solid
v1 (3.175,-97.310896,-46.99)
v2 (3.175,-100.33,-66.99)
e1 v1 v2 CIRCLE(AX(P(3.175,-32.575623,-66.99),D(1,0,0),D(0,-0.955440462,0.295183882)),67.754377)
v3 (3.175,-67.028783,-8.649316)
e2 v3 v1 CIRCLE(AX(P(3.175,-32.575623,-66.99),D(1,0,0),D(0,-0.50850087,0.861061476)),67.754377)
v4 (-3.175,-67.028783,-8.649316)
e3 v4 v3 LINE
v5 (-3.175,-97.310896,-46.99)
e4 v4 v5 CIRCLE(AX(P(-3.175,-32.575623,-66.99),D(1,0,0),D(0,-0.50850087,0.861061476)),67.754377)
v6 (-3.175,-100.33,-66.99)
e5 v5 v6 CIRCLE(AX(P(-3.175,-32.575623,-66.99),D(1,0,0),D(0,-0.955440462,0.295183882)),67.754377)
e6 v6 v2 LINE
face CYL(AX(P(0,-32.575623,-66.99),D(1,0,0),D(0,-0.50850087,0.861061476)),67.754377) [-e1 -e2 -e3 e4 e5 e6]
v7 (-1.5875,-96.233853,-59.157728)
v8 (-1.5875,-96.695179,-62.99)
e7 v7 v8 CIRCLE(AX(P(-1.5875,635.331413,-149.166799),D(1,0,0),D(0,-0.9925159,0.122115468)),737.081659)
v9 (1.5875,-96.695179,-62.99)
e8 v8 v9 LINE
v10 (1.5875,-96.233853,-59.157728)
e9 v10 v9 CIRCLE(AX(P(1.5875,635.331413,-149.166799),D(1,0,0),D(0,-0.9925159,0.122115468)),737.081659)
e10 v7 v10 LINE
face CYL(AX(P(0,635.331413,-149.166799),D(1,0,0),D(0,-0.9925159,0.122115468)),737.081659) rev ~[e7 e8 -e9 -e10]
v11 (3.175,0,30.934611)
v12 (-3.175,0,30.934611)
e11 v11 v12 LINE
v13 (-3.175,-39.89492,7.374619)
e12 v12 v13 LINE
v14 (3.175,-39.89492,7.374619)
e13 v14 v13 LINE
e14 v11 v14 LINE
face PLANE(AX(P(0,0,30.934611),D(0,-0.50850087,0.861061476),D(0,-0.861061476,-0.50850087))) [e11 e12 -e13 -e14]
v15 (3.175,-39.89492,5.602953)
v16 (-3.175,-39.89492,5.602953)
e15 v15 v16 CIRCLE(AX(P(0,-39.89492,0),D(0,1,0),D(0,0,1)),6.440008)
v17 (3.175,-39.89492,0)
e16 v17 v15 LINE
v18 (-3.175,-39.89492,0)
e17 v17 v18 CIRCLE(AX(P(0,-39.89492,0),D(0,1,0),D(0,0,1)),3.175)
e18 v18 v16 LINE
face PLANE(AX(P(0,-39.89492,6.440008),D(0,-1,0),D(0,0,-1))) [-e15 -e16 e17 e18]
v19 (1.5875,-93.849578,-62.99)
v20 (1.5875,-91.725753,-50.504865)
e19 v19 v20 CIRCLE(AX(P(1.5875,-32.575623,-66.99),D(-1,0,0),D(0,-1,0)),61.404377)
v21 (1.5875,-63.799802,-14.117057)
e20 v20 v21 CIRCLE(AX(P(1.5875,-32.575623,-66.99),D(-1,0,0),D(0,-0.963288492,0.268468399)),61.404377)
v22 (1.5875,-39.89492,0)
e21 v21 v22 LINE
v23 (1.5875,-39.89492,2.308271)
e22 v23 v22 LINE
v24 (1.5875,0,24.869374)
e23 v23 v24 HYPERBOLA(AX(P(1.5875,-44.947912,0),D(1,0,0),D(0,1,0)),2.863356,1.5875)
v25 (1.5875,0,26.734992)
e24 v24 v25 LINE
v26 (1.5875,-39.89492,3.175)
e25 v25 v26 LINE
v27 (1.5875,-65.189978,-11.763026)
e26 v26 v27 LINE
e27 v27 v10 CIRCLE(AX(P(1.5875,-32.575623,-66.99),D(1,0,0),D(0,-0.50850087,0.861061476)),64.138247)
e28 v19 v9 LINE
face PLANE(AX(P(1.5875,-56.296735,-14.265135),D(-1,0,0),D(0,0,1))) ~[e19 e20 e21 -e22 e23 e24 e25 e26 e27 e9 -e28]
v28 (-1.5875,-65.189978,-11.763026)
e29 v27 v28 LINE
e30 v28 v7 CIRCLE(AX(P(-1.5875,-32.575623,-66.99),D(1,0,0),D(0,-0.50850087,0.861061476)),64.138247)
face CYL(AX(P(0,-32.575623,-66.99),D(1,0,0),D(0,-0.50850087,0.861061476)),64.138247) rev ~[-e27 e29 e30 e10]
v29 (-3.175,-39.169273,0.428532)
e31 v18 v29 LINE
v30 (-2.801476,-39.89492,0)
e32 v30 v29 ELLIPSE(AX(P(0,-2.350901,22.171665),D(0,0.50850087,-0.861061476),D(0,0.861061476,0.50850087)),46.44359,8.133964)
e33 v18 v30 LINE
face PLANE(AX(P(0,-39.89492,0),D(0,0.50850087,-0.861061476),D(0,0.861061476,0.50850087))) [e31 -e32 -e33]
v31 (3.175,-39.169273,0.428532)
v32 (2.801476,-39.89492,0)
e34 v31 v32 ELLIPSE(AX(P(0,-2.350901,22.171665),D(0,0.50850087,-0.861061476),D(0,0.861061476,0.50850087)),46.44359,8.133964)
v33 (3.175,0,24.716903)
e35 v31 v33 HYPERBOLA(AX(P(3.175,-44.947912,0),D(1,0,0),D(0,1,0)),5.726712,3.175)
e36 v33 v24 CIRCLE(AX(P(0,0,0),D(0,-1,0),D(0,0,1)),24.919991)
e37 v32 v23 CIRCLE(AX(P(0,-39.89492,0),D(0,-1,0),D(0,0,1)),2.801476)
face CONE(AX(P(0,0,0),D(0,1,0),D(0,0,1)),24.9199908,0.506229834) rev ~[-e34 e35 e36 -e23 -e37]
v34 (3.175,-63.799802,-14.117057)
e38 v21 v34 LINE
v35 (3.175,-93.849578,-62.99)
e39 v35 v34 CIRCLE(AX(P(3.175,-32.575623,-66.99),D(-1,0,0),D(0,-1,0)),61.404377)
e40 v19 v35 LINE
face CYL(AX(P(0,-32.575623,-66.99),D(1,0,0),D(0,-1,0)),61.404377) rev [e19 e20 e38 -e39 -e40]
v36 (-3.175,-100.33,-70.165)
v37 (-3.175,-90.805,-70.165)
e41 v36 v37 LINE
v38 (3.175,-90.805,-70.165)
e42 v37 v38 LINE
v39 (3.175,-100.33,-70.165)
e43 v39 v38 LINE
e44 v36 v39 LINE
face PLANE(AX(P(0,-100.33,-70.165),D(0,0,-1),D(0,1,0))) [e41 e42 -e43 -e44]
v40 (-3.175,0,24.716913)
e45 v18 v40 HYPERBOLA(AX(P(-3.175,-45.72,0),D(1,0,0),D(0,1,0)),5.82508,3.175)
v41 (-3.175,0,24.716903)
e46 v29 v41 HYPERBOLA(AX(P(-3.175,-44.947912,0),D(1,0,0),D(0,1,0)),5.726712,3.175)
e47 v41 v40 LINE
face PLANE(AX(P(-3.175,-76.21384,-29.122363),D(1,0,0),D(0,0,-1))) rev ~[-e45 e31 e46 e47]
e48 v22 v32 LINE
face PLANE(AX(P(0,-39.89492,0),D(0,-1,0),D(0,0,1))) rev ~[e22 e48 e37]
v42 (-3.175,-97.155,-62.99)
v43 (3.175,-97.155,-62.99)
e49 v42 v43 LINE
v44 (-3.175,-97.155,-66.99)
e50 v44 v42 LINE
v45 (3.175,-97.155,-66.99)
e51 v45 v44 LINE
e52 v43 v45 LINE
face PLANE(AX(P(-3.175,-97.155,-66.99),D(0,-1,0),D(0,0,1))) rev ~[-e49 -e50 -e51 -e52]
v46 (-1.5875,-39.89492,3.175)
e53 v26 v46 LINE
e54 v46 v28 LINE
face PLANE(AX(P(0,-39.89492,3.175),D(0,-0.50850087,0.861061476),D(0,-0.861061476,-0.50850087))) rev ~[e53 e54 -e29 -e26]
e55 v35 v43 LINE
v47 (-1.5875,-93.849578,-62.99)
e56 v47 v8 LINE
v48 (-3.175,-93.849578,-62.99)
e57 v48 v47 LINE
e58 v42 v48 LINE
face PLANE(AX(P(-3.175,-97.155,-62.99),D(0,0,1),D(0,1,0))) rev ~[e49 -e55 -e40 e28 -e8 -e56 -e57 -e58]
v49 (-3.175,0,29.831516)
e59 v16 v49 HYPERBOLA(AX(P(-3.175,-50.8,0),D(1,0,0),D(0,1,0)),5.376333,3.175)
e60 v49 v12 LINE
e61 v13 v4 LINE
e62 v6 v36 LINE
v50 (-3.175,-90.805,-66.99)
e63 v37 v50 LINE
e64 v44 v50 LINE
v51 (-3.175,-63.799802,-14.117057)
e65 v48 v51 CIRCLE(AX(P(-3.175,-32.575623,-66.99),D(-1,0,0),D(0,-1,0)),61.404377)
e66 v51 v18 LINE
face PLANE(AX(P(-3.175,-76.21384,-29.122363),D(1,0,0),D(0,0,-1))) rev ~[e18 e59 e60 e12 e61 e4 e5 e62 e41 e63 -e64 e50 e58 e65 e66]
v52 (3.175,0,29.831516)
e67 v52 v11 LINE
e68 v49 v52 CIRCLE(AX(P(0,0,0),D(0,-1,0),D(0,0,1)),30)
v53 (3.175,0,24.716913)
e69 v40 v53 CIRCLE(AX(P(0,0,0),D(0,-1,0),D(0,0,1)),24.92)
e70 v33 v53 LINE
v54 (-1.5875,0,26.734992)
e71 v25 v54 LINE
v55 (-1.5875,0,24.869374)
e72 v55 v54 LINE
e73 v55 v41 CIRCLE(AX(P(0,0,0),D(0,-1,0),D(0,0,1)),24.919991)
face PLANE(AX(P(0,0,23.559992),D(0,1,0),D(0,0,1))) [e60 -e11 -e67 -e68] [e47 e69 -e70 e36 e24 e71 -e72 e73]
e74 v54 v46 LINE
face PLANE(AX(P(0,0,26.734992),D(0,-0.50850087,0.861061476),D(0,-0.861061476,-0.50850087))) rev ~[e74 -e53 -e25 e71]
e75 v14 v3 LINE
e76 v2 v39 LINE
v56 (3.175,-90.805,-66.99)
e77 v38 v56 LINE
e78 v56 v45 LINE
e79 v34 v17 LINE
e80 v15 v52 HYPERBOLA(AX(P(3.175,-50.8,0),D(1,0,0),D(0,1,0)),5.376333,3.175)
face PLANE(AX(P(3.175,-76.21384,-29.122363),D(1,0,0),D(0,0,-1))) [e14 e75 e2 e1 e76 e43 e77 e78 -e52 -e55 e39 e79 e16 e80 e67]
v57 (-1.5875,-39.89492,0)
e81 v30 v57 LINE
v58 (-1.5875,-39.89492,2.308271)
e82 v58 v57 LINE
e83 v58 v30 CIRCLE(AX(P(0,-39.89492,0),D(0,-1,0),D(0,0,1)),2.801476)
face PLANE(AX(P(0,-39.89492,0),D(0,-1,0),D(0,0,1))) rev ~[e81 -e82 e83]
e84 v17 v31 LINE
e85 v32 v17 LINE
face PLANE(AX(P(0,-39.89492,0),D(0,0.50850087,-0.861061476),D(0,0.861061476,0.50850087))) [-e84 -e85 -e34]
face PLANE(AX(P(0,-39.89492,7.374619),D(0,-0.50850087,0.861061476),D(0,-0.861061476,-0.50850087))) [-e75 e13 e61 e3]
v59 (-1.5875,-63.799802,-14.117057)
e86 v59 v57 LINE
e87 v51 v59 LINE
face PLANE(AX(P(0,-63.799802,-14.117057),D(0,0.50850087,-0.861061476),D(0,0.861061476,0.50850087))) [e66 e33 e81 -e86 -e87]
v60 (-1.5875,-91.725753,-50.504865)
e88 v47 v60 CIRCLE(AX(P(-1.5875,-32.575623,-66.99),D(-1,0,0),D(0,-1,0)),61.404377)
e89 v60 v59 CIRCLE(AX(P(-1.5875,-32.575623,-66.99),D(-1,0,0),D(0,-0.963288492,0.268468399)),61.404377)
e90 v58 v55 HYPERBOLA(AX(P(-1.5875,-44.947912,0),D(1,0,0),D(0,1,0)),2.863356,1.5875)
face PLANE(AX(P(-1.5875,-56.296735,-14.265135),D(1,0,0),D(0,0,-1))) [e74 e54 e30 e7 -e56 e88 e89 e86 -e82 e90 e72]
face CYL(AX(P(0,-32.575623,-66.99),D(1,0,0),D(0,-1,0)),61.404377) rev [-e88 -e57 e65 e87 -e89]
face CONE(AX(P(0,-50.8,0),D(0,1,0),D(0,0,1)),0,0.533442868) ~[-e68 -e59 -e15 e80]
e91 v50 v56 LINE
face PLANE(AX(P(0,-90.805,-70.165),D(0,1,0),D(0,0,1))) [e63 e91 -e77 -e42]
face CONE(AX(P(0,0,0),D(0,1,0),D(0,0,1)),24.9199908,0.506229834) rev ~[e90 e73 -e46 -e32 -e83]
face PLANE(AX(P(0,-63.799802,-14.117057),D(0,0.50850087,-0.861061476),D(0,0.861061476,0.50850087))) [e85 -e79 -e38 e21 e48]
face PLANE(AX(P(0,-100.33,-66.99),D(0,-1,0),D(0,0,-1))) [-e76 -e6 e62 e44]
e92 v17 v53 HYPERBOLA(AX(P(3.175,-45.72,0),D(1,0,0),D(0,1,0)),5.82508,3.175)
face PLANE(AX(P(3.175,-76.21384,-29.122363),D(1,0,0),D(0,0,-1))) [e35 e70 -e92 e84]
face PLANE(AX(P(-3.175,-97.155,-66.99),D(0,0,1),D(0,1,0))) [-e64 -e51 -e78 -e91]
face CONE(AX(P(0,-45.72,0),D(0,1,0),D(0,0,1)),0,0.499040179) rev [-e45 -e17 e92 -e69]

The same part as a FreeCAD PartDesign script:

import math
import FreeCAD as App
import Part
import Sketcher

V = App.Vector
Q = App.Units.Quantity

doc = App.newDocument("Part")
body = doc.addObject("PartDesign::Body", "Body")

# Sketch on YZ plane
sketch1 = body.newObject("Sketcher::SketchObject", "Sketch")
sketch1.AttachmentSupport = (doc.getObject("YZ_Plane"), [""])
sketch1.MapMode = "FlatFace"
sketch1.addGeometry(Part.LineSegment(V(0, 30, 0), V(-51, 0, 0)), False)
sketch1.addGeometry(Part.LineSegment(V(-51, 0, 0), V(0, 0, 0)), False)
sketch1.addGeometry(Part.LineSegment(V(0, 0, 0), V(0, 30, 0)), False)
sketch1.addConstraint(Sketcher.Constraint("Coincident", 0, 2, 1, 1))
sketch1.addConstraint(Sketcher.Constraint("Coincident", 1, 2, 2, 1))
sketch1.addConstraint(Sketcher.Constraint("Coincident", 2, 2, 0, 1))
sketch1.addConstraint(Sketcher.Constraint("Horizontal", 1))
sketch1.addConstraint(Sketcher.Constraint("Vertical", 2))
sketch1.addConstraint(Sketcher.Constraint("Coincident", 1, 2, -1, 1))
sketch1.addConstraint(Sketcher.Constraint("DistanceX", 1, 1, 1, 2, Q("2 in")))
sketch1.addConstraint(Sketcher.Constraint("DistanceY", 2, 1, 2, 2, Q("30 mm")))
revolution = body.newObject("PartDesign::Revolution", "Revolution")
revolution.Profile = sketch1
revolution.ReferenceAxis = (sketch1, ["H_Axis"])
revolution.Angle = 360

# Sketch on YZ plane
sketch2 = body.newObject("Sketcher::SketchObject", "Sketch001")
sketch2.AttachmentSupport = (doc.getObject("YZ_Plane"), [""])
sketch2.MapMode = "FlatFace"
sketch2.addGeometry(Part.LineSegment(V(0, 25, 0), V(-46, 0, 0)), False)
sketch2.addGeometry(Part.LineSegment(V(-46, 0, 0), V(0, 0, 0)), False)
sketch2.addGeometry(Part.LineSegment(V(0, 0, 0), V(0, 25, 0)), False)
sketch2.addConstraint(Sketcher.Constraint("Coincident", 0, 2, 1, 1))
sketch2.addConstraint(Sketcher.Constraint("Coincident", 1, 2, 2, 1))
sketch2.addConstraint(Sketcher.Constraint("Coincident", 2, 2, 0, 1))
sketch2.addConstraint(Sketcher.Constraint("Horizontal", 1))
sketch2.addConstraint(Sketcher.Constraint("Vertical", 2))
sketch2.addConstraint(Sketcher.Constraint("Coincident", 1, 2, -1, 1))
sketch2.addConstraint(Sketcher.Constraint("DistanceX", 1, 1, 1, 2, Q("1.8 in")))
sketch2.addConstraint(Sketcher.Constraint("DistanceY", 2, 1, 2, 2, Q("24.92 mm")))
groove = body.newObject("PartDesign::Groove", "Groove")
groove.Profile = sketch2
groove.ReferenceAxis = (sketch2, ["H_Axis"])
groove.Angle = 360

# Sketch on YZ plane
sketch3 = body.newObject("Sketcher::SketchObject", "Sketch002")
sketch3.AttachmentSupport = (doc.getObject("YZ_Plane"), [""])
sketch3.MapMode = "FlatFace"
sketch3.addGeometry(Part.LineSegment(V(-40, 6, 0), V(-56, 6, 0)), False)
sketch3.addGeometry(Part.LineSegment(V(-56, 6, 0), V(-56, -6, 0)), False)
sketch3.addGeometry(Part.LineSegment(V(-56, -6, 0), V(-40, -6, 0)), False)
sketch3.addGeometry(Part.LineSegment(V(-40, -6, 0), V(-40, 6, 0)), False)
sketch3.addConstraint(Sketcher.Constraint("Coincident", 0, 2, 1, 1))
sketch3.addConstraint(Sketcher.Constraint("Coincident", 1, 2, 2, 1))
sketch3.addConstraint(Sketcher.Constraint("Coincident", 2, 2, 3, 1))
sketch3.addConstraint(Sketcher.Constraint("Coincident", 3, 2, 0, 1))
sketch3.addConstraint(Sketcher.Constraint("Horizontal", 0))
sketch3.addConstraint(Sketcher.Constraint("Vertical", 1))
sketch3.addConstraint(Sketcher.Constraint("Horizontal", 2))
sketch3.addConstraint(Sketcher.Constraint("Vertical", 3))
sketch3.addConstraint(Sketcher.Constraint("DistanceX", 0, 2, 0, 1, Q("15.834691 mm")))
sketch3.addConstraint(Sketcher.Constraint("DistanceY", 1, 2, 1, 1, Q("12.880016 mm")))
sketch3.addConstraint(Sketcher.Constraint("DistanceX", 0, 2, -1, 1, Q("55.729611 mm")))
sketch3.addConstraint(Sketcher.Constraint("DistanceY", -1, 1, 0, 2, Q("6.440008 mm")))
pocket1 = body.newObject("PartDesign::Pocket", "Pocket")
pocket1.Profile = sketch3
pocket1.Length = Q("0.6 in")
pocket1.Midplane = True

# Sketch on YZ plane
sketch4 = body.newObject("Sketcher::SketchObject", "Sketch003")
sketch4.AttachmentSupport = (doc.getObject("YZ_Plane"), [""])
sketch4.MapMode = "FlatFace"
sketch4.addGeometry(Part.LineSegment(V(-39.9, 7.4, 0), V(-67, -8.6, 0)), False)
sketch4.addGeometry(Part.ArcOfCircle(Part.Circle(V(-32.6, -67, 0), V(0, 0, 1), 67.8), math.radians(121), math.radians(163)), False)
sketch4.addGeometry(Part.ArcOfCircle(Part.Circle(V(-32.6, -67, 0), V(0, 0, 1), 67.8), math.radians(162.83), math.radians(180)), False)
sketch4.addGeometry(Part.LineSegment(V(-100.3, -67, 0), V(-100.3, -70.2, 0)), False)
sketch4.addGeometry(Part.LineSegment(V(-100.3, -70.2, 0), V(-90.8, -70.2, 0)), False)
sketch4.addGeometry(Part.LineSegment(V(-90.8, -70.2, 0), V(-90.8, -67, 0)), False)
sketch4.addGeometry(Part.LineSegment(V(-90.8, -67, 0), V(-94, -67, 0)), False)
sketch4.addGeometry(Part.ArcOfCircle(Part.Circle(V(-32.6, -67, 0), V(0, 0, 1), 61.4), math.radians(121), math.radians(180)), False)
sketch4.addGeometry(Part.LineSegment(V(-63.8, -14.1, 0), V(-39.9, 0, 0)), False)
sketch4.addGeometry(Part.LineSegment(V(-39.9, 0, 0), V(0, 23.6, 0)), False)
sketch4.addGeometry(Part.LineSegment(V(0, 23.6, 0), V(0, 30.9, 0)), False)
sketch4.addGeometry(Part.LineSegment(V(0, 30.9, 0), V(-39.9, 7.4, 0)), False)
sketch4.addConstraint(Sketcher.Constraint("Tangent", 0, 2, 1, 1))
sketch4.addConstraint(Sketcher.Constraint("Tangent", 1, 2, 2, 1))
sketch4.addConstraint(Sketcher.Constraint("Tangent", 2, 2, 3, 1))
sketch4.addConstraint(Sketcher.Constraint("Coincident", 3, 2, 4, 1))
sketch4.addConstraint(Sketcher.Constraint("Coincident", 4, 2, 5, 1))
sketch4.addConstraint(Sketcher.Constraint("Coincident", 5, 2, 6, 1))
sketch4.addConstraint(Sketcher.Constraint("Coincident", 6, 2, 7, 2))
sketch4.addConstraint(Sketcher.Constraint("Tangent", 7, 1, 8, 1))
sketch4.addConstraint(Sketcher.Constraint("Coincident", 8, 2, 9, 1))
sketch4.addConstraint(Sketcher.Constraint("Coincident", 9, 2, 10, 1))
sketch4.addConstraint(Sketcher.Constraint("Coincident", 10, 2, 11, 1))
sketch4.addConstraint(Sketcher.Constraint("Coincident", 11, 2, 0, 1))
sketch4.addConstraint(Sketcher.Constraint("Vertical", 3))
sketch4.addConstraint(Sketcher.Constraint("Horizontal", 4))
sketch4.addConstraint(Sketcher.Constraint("Vertical", 5))
sketch4.addConstraint(Sketcher.Constraint("Horizontal", 6))
sketch4.addConstraint(Sketcher.Constraint("Vertical", 10))
sketch4.addConstraint(Sketcher.Constraint("Coincident", 7, 3, 1, 3))
sketch4.addConstraint(Sketcher.Constraint("Equal", 1, 2))
sketch4.addConstraint(Sketcher.Constraint("PointOnObject", 8, 2, -1))
sketch4.addConstraint(Sketcher.Constraint("PointOnObject", 9, 2, -2))
sketch4.addConstraint(Sketcher.Constraint("Parallel", 0, 8))
sketch4.addConstraint(Sketcher.Constraint("Parallel", 8, 9))
sketch4.addConstraint(Sketcher.Constraint("Parallel", 9, 11))
sketch4.addConstraint(Sketcher.Constraint("Horizontal", 2, 2, 5, 2))
sketch4.addConstraint(Sketcher.Constraint("Vertical", 8, 2, 11, 2))
sketch4.addConstraint(Sketcher.Constraint("Equal", 6, 3))
sketch4.addConstraint(Sketcher.Constraint("DistanceX", 6, 2, -1, 1, Q("3.7 in")))
sketch4.addConstraint(Sketcher.Constraint("DistanceX", 4, 1, 4, 2, Q("0.375 in")))
sketch4.addConstraint(Sketcher.Constraint("DistanceX", 6, 2, 6, 1, Q("0.125 in")))
sketch4.addConstraint(Sketcher.Constraint("DistanceY", 1, 2, -1, 1, Q("1.85 in")))
sketch4.addConstraint(Sketcher.Constraint("Radius", 1, Q("67.754377 mm")))
sketch4.addConstraint(Sketcher.Constraint("DistanceY", 10, 1, 10, 2, Q("7.374619 mm")))
sketch4.addConstraint(Sketcher.Constraint("DistanceY", 1, 3, -1, 1, Q("66.99 mm")))
pad1 = body.newObject("PartDesign::Pad", "Pad")
pad1.Profile = sketch4
pad1.Length = Q("0.25 in")
pad1.Midplane = True

# Sketch on YZ plane
sketch5 = body.newObject("Sketcher::SketchObject", "Sketch004")
sketch5.AttachmentSupport = (doc.getObject("YZ_Plane"), [""])
sketch5.MapMode = "FlatFace"
sketch5.addGeometry(Part.LineSegment(V(-39.9, 3.2, 0), V(-65.2, -11.8, 0)), False)
sketch5.addGeometry(Part.ArcOfCircle(Part.Circle(V(-32.6, -67, 0), V(0, 0, 1), 64.1), math.radians(121), math.radians(173)), False)
sketch5.addGeometry(Part.ArcOfCircle(Part.Circle(V(635.3, -149.2, 0), V(0, 0, 1), 737.1), math.radians(172.99), math.radians(173.6)), False)
sketch5.addGeometry(Part.LineSegment(V(-97.2, -67, 0), V(-94, -67, 0)), False)
sketch5.addGeometry(Part.ArcOfCircle(Part.Circle(V(-32.6, -67, 0), V(0, 0, 1), 61.4), math.radians(164.43), math.radians(180)), False)
sketch5.addGeometry(Part.ArcOfCircle(Part.Circle(V(-32.6, -67, 0), V(0, 0, 1), 61.4), math.radians(121), math.radians(164)), False)
sketch5.addGeometry(Part.LineSegment(V(-63.8, -14.1, 0), V(0, 23.6, 0)), False)
sketch5.addGeometry(Part.LineSegment(V(0, 23.6, 0), V(0, 26.7, 0)), False)
sketch5.addGeometry(Part.LineSegment(V(0, 26.7, 0), V(-39.9, 3.2, 0)), False)
sketch5.addConstraint(Sketcher.Constraint("Tangent", 0, 2, 1, 1))
sketch5.addConstraint(Sketcher.Constraint("Tangent", 1, 2, 2, 1))
sketch5.addConstraint(Sketcher.Constraint("Coincident", 2, 2, 3, 1))
sketch5.addConstraint(Sketcher.Constraint("Coincident", 3, 2, 4, 2))
sketch5.addConstraint(Sketcher.Constraint("Tangent", 4, 1, 5, 2))
sketch5.addConstraint(Sketcher.Constraint("Tangent", 5, 1, 6, 1))
sketch5.addConstraint(Sketcher.Constraint("Coincident", 6, 2, 7, 1))
sketch5.addConstraint(Sketcher.Constraint("Coincident", 7, 2, 8, 1))
sketch5.addConstraint(Sketcher.Constraint("Coincident", 8, 2, 0, 1))
sketch5.addConstraint(Sketcher.Constraint("Horizontal", 3))
sketch5.addConstraint(Sketcher.Constraint("Vertical", 7))
sketch5.addConstraint(Sketcher.Constraint("Coincident", 4, 3, 1, 3))
sketch5.addConstraint(Sketcher.Constraint("Equal", 4, 5))
sketch5.addConstraint(Sketcher.Constraint("PointOnObject", 6, 2, -2))
sketch5.addConstraint(Sketcher.Constraint("Parallel", 0, 6))
sketch5.addConstraint(Sketcher.Constraint("Parallel", 6, 8))
sketch5.addConstraint(Sketcher.Constraint("Equal", 3, 7))
sketch5.addConstraint(Sketcher.Constraint("DistanceX", 3, 2, -1, 1, Q("3.7 in")))
sketch5.addConstraint(Sketcher.Constraint("DistanceX", 3, 1, 3, 2, Q("0.125 in")))
sketch5.addConstraint(Sketcher.Constraint("DistanceY", -1, 1, 8, 2, Q("0.125 in")))
sketch5.addConstraint(Sketcher.Constraint("Radius", 2, Q("737.081659 mm")))
sketch5.addConstraint(Sketcher.Constraint("Radius", 1, Q("64.138247 mm")))
sketch5.addConstraint(Sketcher.Constraint("Radius", 4, Q("61.404377 mm")))
sketch5.addConstraint(Sketcher.Constraint("Distance", 0, Q("29.376599 mm")))
sketch5.addConstraint(Sketcher.Constraint("DistanceY", 2, 3, -1, 1, Q("149.166799 mm")))
sketch5.addConstraint(Sketcher.Constraint("DistanceX", 1, 2, 4, 1, Q("4.5081 mm")))
pocket2 = body.newObject("PartDesign::Pocket", "Pocket001")
pocket2.Profile = sketch5
pocket2.Length = Q("0.0625 in")
doc.recompute()

mirrored = body.newObject("PartDesign::Mirrored", "Mirrored")
mirrored.Originals = [pocket2]
mirrored.MirrorPlane = (doc.getObject("YZ_Plane"), [""])
body.Tip = mirrored

# Sketch on YZ plane
sketch6 = body.newObject("Sketcher::SketchObject", "Sketch005")
sketch6.AttachmentSupport = (doc.getObject("YZ_Plane"), [""])
sketch6.MapMode = "FlatFace"
sketch6.addGeometry(Part.LineSegment(V(0, 0, 0), V(0, 24.9, 0)), False)
sketch6.addGeometry(Part.LineSegment(V(0, 24.9, 0), V(-39.9, 2.8, 0)), False)
sketch6.addGeometry(Part.LineSegment(V(-39.9, 2.8, 0), V(-39.9, 0, 0)), False)
sketch6.addGeometry(Part.LineSegment(V(-39.9, 0, 0), V(0, 0, 0)), False)
sketch6.addConstraint(Sketcher.Constraint("Coincident", 0, 2, 1, 1))
sketch6.addConstraint(Sketcher.Constraint("Coincident", 1, 2, 2, 1))
sketch6.addConstraint(Sketcher.Constraint("Coincident", 2, 2, 3, 1))
sketch6.addConstraint(Sketcher.Constraint("Coincident", 3, 2, 0, 1))
sketch6.addConstraint(Sketcher.Constraint("Vertical", 0))
sketch6.addConstraint(Sketcher.Constraint("Vertical", 2))
sketch6.addConstraint(Sketcher.Constraint("Horizontal", 3))
sketch6.addConstraint(Sketcher.Constraint("Coincident", 3, 2, -1, 1))
sketch6.addConstraint(Sketcher.Constraint("DistanceX", 3, 1, 3, 2, Q("39.89492 mm")))
sketch6.addConstraint(Sketcher.Constraint("DistanceY", 0, 1, 0, 2, Q("24.919991 mm")))
sketch6.addConstraint(Sketcher.Constraint("Distance", 1, Q("45.616152 mm")))
groove2 = body.newObject("PartDesign::Groove", "Groove001")
groove2.Profile = sketch6
groove2.ReferenceAxis = (sketch6, ["H_Axis"])
groove2.Angle = 360

# Sketch on YZ plane
sketch7 = body.newObject("Sketcher::SketchObject", "Sketch006")
sketch7.AttachmentSupport = (doc.getObject("YZ_Plane"), [""])
sketch7.MapMode = "FlatFace"
sketch7.AttachmentOffset = App.Placement(V(0, 0, -0.125 * 25.4), App.Rotation())
sketch7.addGeometry(Part.LineSegment(V(-93.8, -67, 0), V(-97.2, -67, 0)), False)
sketch7.addGeometry(Part.LineSegment(V(-97.2, -67, 0), V(-97.2, -63, 0)), False)
sketch7.addGeometry(Part.LineSegment(V(-97.2, -63, 0), V(-93.8, -63, 0)), False)
sketch7.addGeometry(Part.LineSegment(V(-93.8, -63, 0), V(-93.8, -67, 0)), False)
sketch7.addConstraint(Sketcher.Constraint("Coincident", 0, 2, 1, 1))
sketch7.addConstraint(Sketcher.Constraint("Coincident", 1, 2, 2, 1))
sketch7.addConstraint(Sketcher.Constraint("Coincident", 2, 2, 3, 1))
sketch7.addConstraint(Sketcher.Constraint("Coincident", 3, 2, 0, 1))
sketch7.addConstraint(Sketcher.Constraint("Horizontal", 0))
sketch7.addConstraint(Sketcher.Constraint("Vertical", 1))
sketch7.addConstraint(Sketcher.Constraint("Horizontal", 2))
sketch7.addConstraint(Sketcher.Constraint("Vertical", 3))
sketch7.addConstraint(Sketcher.Constraint("DistanceX", 0, 2, -1, 1, Q("3.825 in")))
sketch7.addConstraint(Sketcher.Constraint("DistanceY", 1, 1, 1, 2, Q("4 mm")))
sketch7.addConstraint(Sketcher.Constraint("DistanceY", 0, 2, -1, 1, Q("66.99 mm")))
sketch7.addConstraint(Sketcher.Constraint("DistanceX", 0, 2, 0, 1, Q("3.305422 mm")))
pocket3 = body.newObject("PartDesign::Pocket", "Pocket002")
pocket3.Profile = sketch7
pocket3.Type = "ThroughAll"
pocket3.Reversed = True

doc.recompute()
